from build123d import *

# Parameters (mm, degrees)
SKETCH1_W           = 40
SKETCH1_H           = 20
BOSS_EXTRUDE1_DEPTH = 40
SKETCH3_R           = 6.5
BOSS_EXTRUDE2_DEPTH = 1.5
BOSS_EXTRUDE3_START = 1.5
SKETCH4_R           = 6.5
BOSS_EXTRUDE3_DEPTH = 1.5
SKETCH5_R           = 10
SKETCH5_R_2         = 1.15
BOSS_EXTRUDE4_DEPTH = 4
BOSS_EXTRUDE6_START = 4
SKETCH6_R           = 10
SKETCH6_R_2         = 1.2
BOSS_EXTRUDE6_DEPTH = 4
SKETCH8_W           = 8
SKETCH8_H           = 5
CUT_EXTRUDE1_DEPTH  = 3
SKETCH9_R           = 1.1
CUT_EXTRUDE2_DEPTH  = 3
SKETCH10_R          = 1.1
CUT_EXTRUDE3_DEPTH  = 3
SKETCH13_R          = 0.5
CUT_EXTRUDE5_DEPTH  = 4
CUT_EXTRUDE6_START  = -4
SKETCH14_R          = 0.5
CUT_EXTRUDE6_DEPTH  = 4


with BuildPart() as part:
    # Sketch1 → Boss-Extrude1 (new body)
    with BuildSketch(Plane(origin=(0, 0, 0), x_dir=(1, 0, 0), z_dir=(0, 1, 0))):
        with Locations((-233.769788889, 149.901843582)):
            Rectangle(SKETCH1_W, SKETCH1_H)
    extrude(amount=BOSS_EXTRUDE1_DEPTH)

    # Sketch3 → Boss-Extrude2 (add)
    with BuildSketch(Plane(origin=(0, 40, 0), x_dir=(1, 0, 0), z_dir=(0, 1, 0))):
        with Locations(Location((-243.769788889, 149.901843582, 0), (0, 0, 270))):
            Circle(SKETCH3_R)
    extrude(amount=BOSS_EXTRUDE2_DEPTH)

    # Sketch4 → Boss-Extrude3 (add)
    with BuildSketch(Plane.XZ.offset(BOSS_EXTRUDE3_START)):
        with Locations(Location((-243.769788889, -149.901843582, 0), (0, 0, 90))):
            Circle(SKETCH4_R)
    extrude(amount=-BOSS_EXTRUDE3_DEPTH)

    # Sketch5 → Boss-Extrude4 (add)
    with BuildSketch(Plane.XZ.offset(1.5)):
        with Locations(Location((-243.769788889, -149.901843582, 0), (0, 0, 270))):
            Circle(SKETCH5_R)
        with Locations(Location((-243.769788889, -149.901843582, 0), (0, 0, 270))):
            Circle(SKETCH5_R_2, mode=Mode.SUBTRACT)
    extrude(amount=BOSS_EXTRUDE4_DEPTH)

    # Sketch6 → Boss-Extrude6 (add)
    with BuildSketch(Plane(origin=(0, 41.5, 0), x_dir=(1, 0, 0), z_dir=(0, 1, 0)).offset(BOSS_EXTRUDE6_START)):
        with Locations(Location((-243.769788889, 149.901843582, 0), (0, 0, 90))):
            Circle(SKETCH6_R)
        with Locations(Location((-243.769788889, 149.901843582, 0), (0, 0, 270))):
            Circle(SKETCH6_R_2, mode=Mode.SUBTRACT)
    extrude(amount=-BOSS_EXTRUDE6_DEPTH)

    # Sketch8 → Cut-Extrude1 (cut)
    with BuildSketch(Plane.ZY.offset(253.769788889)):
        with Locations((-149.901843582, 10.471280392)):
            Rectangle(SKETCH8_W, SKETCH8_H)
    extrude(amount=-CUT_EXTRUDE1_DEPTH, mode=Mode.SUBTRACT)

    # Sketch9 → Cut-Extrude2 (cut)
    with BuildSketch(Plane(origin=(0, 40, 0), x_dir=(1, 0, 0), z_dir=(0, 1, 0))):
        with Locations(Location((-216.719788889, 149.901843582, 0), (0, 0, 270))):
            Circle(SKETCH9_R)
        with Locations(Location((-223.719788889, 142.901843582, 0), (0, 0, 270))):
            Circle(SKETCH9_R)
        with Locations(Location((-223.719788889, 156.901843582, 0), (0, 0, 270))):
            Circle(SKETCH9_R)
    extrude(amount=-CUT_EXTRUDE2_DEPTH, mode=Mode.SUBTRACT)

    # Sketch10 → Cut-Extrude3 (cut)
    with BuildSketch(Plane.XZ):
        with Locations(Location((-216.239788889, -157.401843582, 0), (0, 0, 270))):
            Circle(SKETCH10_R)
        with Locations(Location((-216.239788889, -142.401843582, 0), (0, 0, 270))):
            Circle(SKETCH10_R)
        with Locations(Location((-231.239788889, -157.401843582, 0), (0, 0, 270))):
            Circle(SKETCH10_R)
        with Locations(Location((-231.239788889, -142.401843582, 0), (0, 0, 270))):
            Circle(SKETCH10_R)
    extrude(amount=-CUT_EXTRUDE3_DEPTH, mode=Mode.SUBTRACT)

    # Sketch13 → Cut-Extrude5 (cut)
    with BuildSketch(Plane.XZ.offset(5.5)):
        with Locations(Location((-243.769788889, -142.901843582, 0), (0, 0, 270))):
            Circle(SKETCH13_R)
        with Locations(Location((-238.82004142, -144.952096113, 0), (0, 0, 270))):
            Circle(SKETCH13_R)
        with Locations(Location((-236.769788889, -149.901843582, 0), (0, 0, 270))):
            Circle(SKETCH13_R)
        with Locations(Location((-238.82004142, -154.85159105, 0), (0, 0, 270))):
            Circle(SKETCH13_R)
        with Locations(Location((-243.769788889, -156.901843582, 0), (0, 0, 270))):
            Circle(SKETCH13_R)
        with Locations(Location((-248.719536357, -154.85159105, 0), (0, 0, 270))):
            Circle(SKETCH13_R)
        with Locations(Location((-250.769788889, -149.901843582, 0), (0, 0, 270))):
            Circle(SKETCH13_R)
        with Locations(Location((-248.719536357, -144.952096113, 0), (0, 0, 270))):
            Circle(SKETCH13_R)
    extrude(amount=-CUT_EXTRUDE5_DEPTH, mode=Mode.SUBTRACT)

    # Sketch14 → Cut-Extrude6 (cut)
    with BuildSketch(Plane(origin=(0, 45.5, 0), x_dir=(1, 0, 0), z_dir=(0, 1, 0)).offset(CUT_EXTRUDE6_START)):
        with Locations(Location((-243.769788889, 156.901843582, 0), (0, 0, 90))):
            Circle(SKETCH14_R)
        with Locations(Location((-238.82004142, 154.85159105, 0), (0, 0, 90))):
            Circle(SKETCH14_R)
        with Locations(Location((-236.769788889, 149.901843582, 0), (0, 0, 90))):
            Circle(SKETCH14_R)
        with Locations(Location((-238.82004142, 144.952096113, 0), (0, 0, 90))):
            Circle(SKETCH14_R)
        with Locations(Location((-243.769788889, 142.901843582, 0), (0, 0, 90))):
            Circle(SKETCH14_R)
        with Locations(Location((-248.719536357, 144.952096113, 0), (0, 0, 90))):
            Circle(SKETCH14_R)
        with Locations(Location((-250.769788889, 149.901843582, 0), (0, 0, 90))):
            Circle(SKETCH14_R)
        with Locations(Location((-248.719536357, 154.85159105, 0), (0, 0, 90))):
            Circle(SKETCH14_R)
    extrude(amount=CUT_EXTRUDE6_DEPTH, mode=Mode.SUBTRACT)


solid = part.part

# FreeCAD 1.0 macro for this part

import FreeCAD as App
import Part
import Sketcher
Q = App.Units.Quantity


def add_polygon(sketch, points):
    """Adds a closed chain of lines whose ends are joined by coincident constraints."""
    first, n = sketch.GeometryCount, len(points)
    for a, b in zip(points, points[1:] + points[:1]):
        sketch.addGeometry(Part.LineSegment(App.Vector(*a, 0), App.Vector(*b, 0)), False)
    for i in range(n):
        sketch.addConstraint(Sketcher.Constraint("Coincident", first + i, 2, first + (i + 1) % n, 1))

doc = App.newDocument("Part")
params = doc.addObject("Spreadsheet::Sheet", "Params")
for row, (alias, value) in enumerate([
    ("sketch1_width", "40 mm"),
    ("sketch1_height", "20 mm"),
    ("pad1_length", "40 mm"),
    ("sketch2_diameter", "13 mm"),
    ("pad2_length", "1.5 mm"),
    ("sketch3_diameter", "13 mm"),
    ("pad3_length", "1.5 mm"),
    ("sketch4_diameter", "20 mm"),
    ("sketch4_diameter2", "2.3 mm"),
    ("pad4_length", "4 mm"),
    ("sketch5_diameter", "20 mm"),
    ("sketch5_diameter2", "2.4 mm"),
    ("pad5_length", "4 mm"),
    ("sketch6_width", "5 mm"),
    ("sketch6_height", "8 mm"),
    ("pocket1_length", "3 mm"),
    ("sketch7_diameter", "2.2 mm"),
    ("pocket2_length", "3 mm"),
    ("sketch8_diameter", "2.2 mm"),
    ("pocket3_length", "3 mm"),
    ("sketch9_diameter", "1 mm"),
    ("pocket4_length", "4 mm"),
    ("sketch10_diameter", "1 mm"),
    ("pocket5_length", "4 mm"),
], start=1):
    params.set(f"A{row}", alias)
    params.set(f"B{row}", "=" + value)
    params.setAlias(f"B{row}", alias)

body = doc.addObject("PartDesign::Body", "Body")

# Sketch on XZ plane
sketch1 = body.newObject("Sketcher::SketchObject", "Sketch")
sketch1.AttachmentSupport = (doc.getObject("XZ_Plane"), [""])
sketch1.MapMode = "FlatFace"
add_polygon(sketch1, [(-253.769789, -159.901844), (-253.769789, -139.901844), (-213.769789, -139.901844), (-213.769789, -159.901844)])  # lines 0-3
sketch1.addConstraint([
    Sketcher.Constraint("Vertical", 0),
    Sketcher.Constraint("Horizontal", 1),
    Sketcher.Constraint("Vertical", 2),
    Sketcher.Constraint("Horizontal", 3),
    Sketcher.Constraint("DistanceX", 1, 1, 1, 2, Q("40 mm")),
    Sketcher.Constraint("DistanceY", 0, 1, 0, 2, Q("20 mm")),
    Sketcher.Constraint("DistanceX", 0, 2, -1, 1, Q("253.769789 mm")),
    Sketcher.Constraint("DistanceY", 0, 2, -1, 1, Q("139.901844 mm")),
])
sketch1.setExpression("Constraints[8]", "Params.sketch1_width")
sketch1.setExpression("Constraints[9]", "Params.sketch1_height")
pad1 = body.newObject("PartDesign::Pad", "Pad")
pad1.Profile = sketch1
pad1.setExpression("Length", "Params.pad1_length")
pad1.Reversed = True

# Sketch on XZ plane
sketch2 = body.newObject("Sketcher::SketchObject", "Sketch001")
sketch2.AttachmentSupport = (doc.getObject("XZ_Plane"), [""])
sketch2.MapMode = "FlatFace"
sketch2.AttachmentOffset = App.Placement(App.Vector(0, 0, -40), App.Rotation())
sketch2.addGeometry(Part.Circle(App.Vector(-243.769789, -149.901844, 0), App.Vector(0, 0, 1), 6.5), False)
sketch2.addConstraint([
    Sketcher.Constraint("Diameter", 0, Q("13 mm")),
    Sketcher.Constraint("DistanceX", 0, 3, -1, 1, Q("243.769789 mm")),
    Sketcher.Constraint("DistanceY", 0, 3, -1, 1, Q("149.901844 mm")),
])
sketch2.setExpression("Constraints[0]", "Params.sketch2_diameter")
pad2 = body.newObject("PartDesign::Pad", "Pad001")
pad2.Profile = sketch2
pad2.setExpression("Length", "Params.pad2_length")
pad2.Reversed = True

# Sketch on XZ plane
sketch3 = body.newObject("Sketcher::SketchObject", "Sketch002")
sketch3.AttachmentSupport = (doc.getObject("XZ_Plane"), [""])
sketch3.MapMode = "FlatFace"
sketch3.AttachmentOffset = App.Placement(App.Vector(0, 0, 1.5), App.Rotation())
sketch3.addGeometry(Part.Circle(App.Vector(-243.769789, -149.901844, 0), App.Vector(0, 0, 1), 6.5), False)
sketch3.addConstraint([
    Sketcher.Constraint("Diameter", 0, Q("13 mm")),
    Sketcher.Constraint("DistanceX", 0, 3, -1, 1, Q("243.769789 mm")),
    Sketcher.Constraint("DistanceY", 0, 3, -1, 1, Q("149.901844 mm")),
])
sketch3.setExpression("Constraints[0]", "Params.sketch3_diameter")
pad3 = body.newObject("PartDesign::Pad", "Pad002")
pad3.Profile = sketch3
pad3.setExpression("Length", "Params.pad3_length")
pad3.Reversed = True

# Sketch on XZ plane
sketch4 = body.newObject("Sketcher::SketchObject", "Sketch003")
sketch4.AttachmentSupport = (doc.getObject("XZ_Plane"), [""])
sketch4.MapMode = "FlatFace"
sketch4.AttachmentOffset = App.Placement(App.Vector(0, 0, 1.5), App.Rotation())
sketch4.addGeometry([
    Part.Circle(App.Vector(-243.769789, -149.901844, 0), App.Vector(0, 0, 1), 10),
    Part.Circle(App.Vector(-243.769789, -149.901844, 0), App.Vector(0, 0, 1), 1.15),
], False)
sketch4.addConstraint([
    Sketcher.Constraint("Coincident", 1, 3, 0, 3),
    Sketcher.Constraint("Diameter", 0, Q("20 mm")),
    Sketcher.Constraint("Diameter", 1, Q("2.3 mm")),
    Sketcher.Constraint("DistanceX", 0, 3, -1, 1, Q("243.769789 mm")),
    Sketcher.Constraint("DistanceY", 0, 3, -1, 1, Q("149.901844 mm")),
])
sketch4.setExpression("Constraints[1]", "Params.sketch4_diameter")
sketch4.setExpression("Constraints[2]", "Params.sketch4_diameter2")
pad4 = body.newObject("PartDesign::Pad", "Pad003")
pad4.Profile = sketch4
pad4.setExpression("Length", "Params.pad4_length")

# Sketch on XZ plane
sketch5 = body.newObject("Sketcher::SketchObject", "Sketch004")
sketch5.AttachmentSupport = (doc.getObject("XZ_Plane"), [""])
sketch5.MapMode = "FlatFace"
sketch5.AttachmentOffset = App.Placement(App.Vector(0, 0, -45.5), App.Rotation())
sketch5.addGeometry([
    Part.Circle(App.Vector(-243.769789, -149.901844, 0), App.Vector(0, 0, 1), 10),
    Part.Circle(App.Vector(-243.769789, -149.901844, 0), App.Vector(0, 0, 1), 1.2),
], False)
sketch5.addConstraint([
    Sketcher.Constraint("Coincident", 1, 3, 0, 3),
    Sketcher.Constraint("Diameter", 0, Q("20 mm")),
    Sketcher.Constraint("Diameter", 1, Q("2.4 mm")),
    Sketcher.Constraint("DistanceX", 0, 3, -1, 1, Q("243.769789 mm")),
    Sketcher.Constraint("DistanceY", 0, 3, -1, 1, Q("149.901844 mm")),
])
sketch5.setExpression("Constraints[1]", "Params.sketch5_diameter")
sketch5.setExpression("Constraints[2]", "Params.sketch5_diameter2")
pad5 = body.newObject("PartDesign::Pad", "Pad004")
pad5.Profile = sketch5
pad5.setExpression("Length", "Params.pad5_length")

# Sketch on YZ plane
sketch6 = body.newObject("Sketcher::SketchObject", "Sketch005")
sketch6.AttachmentSupport = (doc.getObject("YZ_Plane"), [""])
sketch6.MapMode = "FlatFace"
sketch6.AttachmentOffset = App.Placement(App.Vector(0, 0, -253.769789), App.Rotation())
add_polygon(sketch6, [(12.97128, -153.901844), (7.97128, -153.901844), (7.97128, -145.901844), (12.97128, -145.901844)])  # lines 0-3
sketch6.addConstraint([
    Sketcher.Constraint("Horizontal", 0),
    Sketcher.Constraint("Vertical", 1),
    Sketcher.Constraint("Horizontal", 2),
    Sketcher.Constraint("Vertical", 3),
    Sketcher.Constraint("DistanceX", 0, 2, 0, 1, Q("5 mm")),
    Sketcher.Constraint("DistanceY", 1, 1, 1, 2, Q("8 mm")),
    Sketcher.Constraint("DistanceX", -1, 1, 0, 2, Q("7.97128 mm")),
    Sketcher.Constraint("DistanceY", 0, 2, -1, 1, Q("153.901844 mm")),
])
sketch6.setExpression("Constraints[8]", "Params.sketch6_width")
sketch6.setExpression("Constraints[9]", "Params.sketch6_height")
pocket1 = body.newObject("PartDesign::Pocket", "Pocket")
pocket1.Profile = sketch6
pocket1.setExpression("Length", "Params.pocket1_length")
pocket1.Reversed = True

# Sketch on XZ plane
sketch7 = body.newObject("Sketcher::SketchObject", "Sketch006")
sketch7.AttachmentSupport = (doc.getObject("XZ_Plane"), [""])
sketch7.MapMode = "FlatFace"
sketch7.AttachmentOffset = App.Placement(App.Vector(0, 0, -40), App.Rotation())
sketch7.addGeometry([
    Part.Circle(App.Vector(-216.719789, -149.901844, 0), App.Vector(0, 0, 1), 1.1),
    Part.Circle(App.Vector(-223.719789, -142.901844, 0), App.Vector(0, 0, 1), 1.1),
    Part.Circle(App.Vector(-223.719789, -156.901844, 0), App.Vector(0, 0, 1), 1.1),
], False)
sketch7.addConstraint([
    Sketcher.Constraint("Equal", 0, 1),
    Sketcher.Constraint("Equal", 1, 2),
    Sketcher.Constraint("Vertical", 1, 3, 2, 3),
    Sketcher.Constraint("Diameter", 0, Q("2.2 mm")),
    Sketcher.Constraint("DistanceX", 1, 3, 0, 3, Q("7 mm")),
    Sketcher.Constraint("DistanceY", 0, 3, 1, 3, Q("7 mm")),
    Sketcher.Constraint("DistanceY", 2, 3, 0, 3, Q("7 mm")),
    Sketcher.Constraint("DistanceX", 0, 3, -1, 1, Q("216.719789 mm")),
    Sketcher.Constraint("DistanceY", 0, 3, -1, 1, Q("149.901844 mm")),
])
sketch7.setExpression("Constraints[3]", "Params.sketch7_diameter")
pocket2 = body.newObject("PartDesign::Pocket", "Pocket001")
pocket2.Profile = sketch7
pocket2.setExpression("Length", "Params.pocket2_length")
pocket2.Reversed = True

# Sketch on XZ plane
sketch8 = body.newObject("Sketcher::SketchObject", "Sketch007")
sketch8.AttachmentSupport = (doc.getObject("XZ_Plane"), [""])
sketch8.MapMode = "FlatFace"
sketch8.addGeometry([
    Part.Circle(App.Vector(-216.239789, -157.401844, 0), App.Vector(0, 0, 1), 1.1),
    Part.Circle(App.Vector(-216.239789, -142.401844, 0), App.Vector(0, 0, 1), 1.1),
    Part.Circle(App.Vector(-231.239789, -157.401844, 0), App.Vector(0, 0, 1), 1.1),
    Part.Circle(App.Vector(-231.239789, -142.401844, 0), App.Vector(0, 0, 1), 1.1),
], False)
sketch8.addConstraint([
    Sketcher.Constraint("Equal", 0, 1),
    Sketcher.Constraint("Equal", 1, 2),
    Sketcher.Constraint("Equal", 2, 3),
    Sketcher.Constraint("Horizontal", 0, 3, 2, 3),
    Sketcher.Constraint("Horizontal", 1, 3, 3, 3),
    Sketcher.Constraint("Vertical", 0, 3, 1, 3),
    Sketcher.Constraint("Vertical", 2, 3, 3, 3),
    Sketcher.Constraint("Diameter", 0, Q("2.2 mm")),
    Sketcher.Constraint("DistanceY", 0, 3, 1, 3, Q("15 mm")),
    Sketcher.Constraint("DistanceX", 2, 3, 0, 3, Q("15 mm")),
    Sketcher.Constraint("DistanceX", 0, 3, -1, 1, Q("216.239789 mm")),
    Sketcher.Constraint("DistanceY", 0, 3, -1, 1, Q("157.401844 mm")),
])
sketch8.setExpression("Constraints[7]", "Params.sketch8_diameter")
pocket3 = body.newObject("PartDesign::Pocket", "Pocket002")
pocket3.Profile = sketch8
pocket3.setExpression("Length", "Params.pocket3_length")

# Sketch on XZ plane
sketch9 = body.newObject("Sketcher::SketchObject", "Sketch008")
sketch9.AttachmentSupport = (doc.getObject("XZ_Plane"), [""])
sketch9.MapMode = "FlatFace"
sketch9.AttachmentOffset = App.Placement(App.Vector(0, 0, 5.5), App.Rotation())
sketch9.addGeometry([
    Part.Circle(App.Vector(-243.769789, -142.901844, 0), App.Vector(0, 0, 1), 0.5),  # 0
    Part.Circle(App.Vector(-238.820041, -144.952096, 0), App.Vector(0, 0, 1), 0.5),  # 1
    Part.Circle(App.Vector(-236.769789, -149.901844, 0), App.Vector(0, 0, 1), 0.5),  # 2
    Part.Circle(App.Vector(-238.820041, -154.851591, 0), App.Vector(0, 0, 1), 0.5),  # 3
    Part.Circle(App.Vector(-243.769789, -156.901844, 0), App.Vector(0, 0, 1), 0.5),  # 4
    Part.Circle(App.Vector(-248.719536, -154.851591, 0), App.Vector(0, 0, 1), 0.5),  # 5
    Part.Circle(App.Vector(-250.769789, -149.901844, 0), App.Vector(0, 0, 1), 0.5),  # 6
    Part.Circle(App.Vector(-248.719536, -144.952096, 0), App.Vector(0, 0, 1), 0.5),  # 7
], False)
sketch9.addConstraint([
    Sketcher.Constraint("Equal", 0, 1),
    Sketcher.Constraint("Equal", 1, 2),
    Sketcher.Constraint("Equal", 2, 3),
    Sketcher.Constraint("Equal", 3, 4),
    Sketcher.Constraint("Equal", 4, 5),
    Sketcher.Constraint("Equal", 5, 6),
    Sketcher.Constraint("Equal", 6, 7),
    Sketcher.Constraint("Horizontal", 3, 3, 5, 3),
    Sketcher.Constraint("Horizontal", 2, 3, 6, 3),
    Sketcher.Constraint("Horizontal", 1, 3, 7, 3),
    Sketcher.Constraint("Vertical", 1, 3, 3, 3),
    Sketcher.Constraint("Vertical", 0, 3, 4, 3),
    Sketcher.Constraint("Vertical", 5, 3, 7, 3),
    Sketcher.Constraint("Diameter", 0, Q("1 mm")),
    Sketcher.Constraint("DistanceX", 0, 3, 2, 3, Q("7 mm")),
    Sketcher.Constraint("DistanceY", 2, 3, 0, 3, Q("7 mm")),
    Sketcher.Constraint("DistanceY", 4, 3, 2, 3, Q("7 mm")),
    Sketcher.Constraint("DistanceX", 6, 3, 0, 3, Q("7 mm")),
    Sketcher.Constraint("DistanceX", 0, 3, -1, 1, Q("243.769789 mm")),
    Sketcher.Constraint("DistanceX", 1, 3, -1, 1, Q("238.820041 mm")),
    Sketcher.Constraint("DistanceY", 3, 3, -1, 1, Q("154.851591 mm")),
    Sketcher.Constraint("DistanceY", 0, 3, -1, 1, Q("142.901844 mm")),
    Sketcher.Constraint("DistanceY", 1, 3, -1, 1, Q("144.952096 mm")),
    Sketcher.Constraint("DistanceX", 5, 3, -1, 1, Q("248.719536 mm")),
])
sketch9.setExpression("Constraints[13]", "Params.sketch9_diameter")
pocket4 = body.newObject("PartDesign::Pocket", "Pocket003")
pocket4.Profile = sketch9
pocket4.setExpression("Length", "Params.pocket4_length")

# Sketch on XZ plane
sketch10 = body.newObject("Sketcher::SketchObject", "Sketch009")
sketch10.AttachmentSupport = (doc.getObject("XZ_Plane"), [""])
sketch10.MapMode = "FlatFace"
sketch10.AttachmentOffset = App.Placement(App.Vector(0, 0, -41.5), App.Rotation())
sketch10.addGeometry([
    Part.Circle(App.Vector(-243.769789, -156.901844, 0), App.Vector(0, 0, 1), 0.5),  # 0
    Part.Circle(App.Vector(-238.820041, -154.851591, 0), App.Vector(0, 0, 1), 0.5),  # 1
    Part.Circle(App.Vector(-236.769789, -149.901844, 0), App.Vector(0, 0, 1), 0.5),  # 2
    Part.Circle(App.Vector(-238.820041, -144.952096, 0), App.Vector(0, 0, 1), 0.5),  # 3
    Part.Circle(App.Vector(-243.769789, -142.901844, 0), App.Vector(0, 0, 1), 0.5),  # 4
    Part.Circle(App.Vector(-248.719536, -144.952096, 0), App.Vector(0, 0, 1), 0.5),  # 5
    Part.Circle(App.Vector(-250.769789, -149.901844, 0), App.Vector(0, 0, 1), 0.5),  # 6
    Part.Circle(App.Vector(-248.719536, -154.851591, 0), App.Vector(0, 0, 1), 0.5),  # 7
], False)
sketch10.addConstraint([
    Sketcher.Constraint("Equal", 0, 1),
    Sketcher.Constraint("Equal", 1, 2),
    Sketcher.Constraint("Equal", 2, 3),
    Sketcher.Constraint("Equal", 3, 4),
    Sketcher.Constraint("Equal", 4, 5),
    Sketcher.Constraint("Equal", 5, 6),
    Sketcher.Constraint("Equal", 6, 7),
    Sketcher.Constraint("Horizontal", 3, 3, 5, 3),
    Sketcher.Constraint("Horizontal", 2, 3, 6, 3),
    Sketcher.Constraint("Horizontal", 1, 3, 7, 3),
    Sketcher.Constraint("Vertical", 1, 3, 3, 3),
    Sketcher.Constraint("Vertical", 0, 3, 4, 3),
    Sketcher.Constraint("Vertical", 5, 3, 7, 3),
    Sketcher.Constraint("Diameter", 0, Q("1 mm")),
    Sketcher.Constraint("DistanceX", 0, 3, 2, 3, Q("7 mm")),
    Sketcher.Constraint("DistanceY", 0, 3, 2, 3, Q("7 mm")),
    Sketcher.Constraint("DistanceY", 2, 3, 4, 3, Q("7 mm")),
    Sketcher.Constraint("DistanceX", 6, 3, 0, 3, Q("7 mm")),
    Sketcher.Constraint("DistanceX", 0, 3, -1, 1, Q("243.769789 mm")),
    Sketcher.Constraint("DistanceX", 1, 3, -1, 1, Q("238.820041 mm")),
    Sketcher.Constraint("DistanceY", 1, 3, -1, 1, Q("154.851591 mm")),
    Sketcher.Constraint("DistanceY", 0, 3, -1, 1, Q("156.901844 mm")),
    Sketcher.Constraint("DistanceY", 3, 3, -1, 1, Q("144.952096 mm")),
    Sketcher.Constraint("DistanceX", 5, 3, -1, 1, Q("248.719536 mm")),
])
sketch10.setExpression("Constraints[13]", "Params.sketch10_diameter")
pocket5 = body.newObject("PartDesign::Pocket", "Pocket004")
pocket5.Profile = sketch10
pocket5.setExpression("Length", "Params.pocket5_length")

doc.recompute()
